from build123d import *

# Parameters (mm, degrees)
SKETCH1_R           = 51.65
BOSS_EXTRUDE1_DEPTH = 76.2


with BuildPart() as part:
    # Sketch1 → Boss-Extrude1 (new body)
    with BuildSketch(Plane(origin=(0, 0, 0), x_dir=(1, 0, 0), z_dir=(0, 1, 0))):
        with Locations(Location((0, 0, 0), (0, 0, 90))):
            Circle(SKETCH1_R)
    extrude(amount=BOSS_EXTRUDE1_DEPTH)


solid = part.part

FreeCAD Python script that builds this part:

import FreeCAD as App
import Part
import Sketcher

doc = App.newDocument("Part")
body = doc.addObject("PartDesign::Body", "Body")

sketch1 = body.newObject("Sketcher::SketchObject", "Sketch")
sketch1.AttachmentSupport = (doc.getObject("XZ_Plane"), [""])
sketch1.MapMode = "FlatFace"
sketch1.addGeometry(Part.Circle(App.Vector(0, 0, 0), App.Vector(0, 0, 1), 51.65), False)
sketch1.addConstraint(Sketcher.Constraint("Coincident", 0, 3, -1, 1))
sketch1.addConstraint(Sketcher.Constraint("Diameter", 0, 103.3))
pad1 = body.newObject("PartDesign::Pad", "Pad")
pad1.Profile = sketch1
pad1.Length = 76.2
pad1.Reversed = True

doc.recompute()
